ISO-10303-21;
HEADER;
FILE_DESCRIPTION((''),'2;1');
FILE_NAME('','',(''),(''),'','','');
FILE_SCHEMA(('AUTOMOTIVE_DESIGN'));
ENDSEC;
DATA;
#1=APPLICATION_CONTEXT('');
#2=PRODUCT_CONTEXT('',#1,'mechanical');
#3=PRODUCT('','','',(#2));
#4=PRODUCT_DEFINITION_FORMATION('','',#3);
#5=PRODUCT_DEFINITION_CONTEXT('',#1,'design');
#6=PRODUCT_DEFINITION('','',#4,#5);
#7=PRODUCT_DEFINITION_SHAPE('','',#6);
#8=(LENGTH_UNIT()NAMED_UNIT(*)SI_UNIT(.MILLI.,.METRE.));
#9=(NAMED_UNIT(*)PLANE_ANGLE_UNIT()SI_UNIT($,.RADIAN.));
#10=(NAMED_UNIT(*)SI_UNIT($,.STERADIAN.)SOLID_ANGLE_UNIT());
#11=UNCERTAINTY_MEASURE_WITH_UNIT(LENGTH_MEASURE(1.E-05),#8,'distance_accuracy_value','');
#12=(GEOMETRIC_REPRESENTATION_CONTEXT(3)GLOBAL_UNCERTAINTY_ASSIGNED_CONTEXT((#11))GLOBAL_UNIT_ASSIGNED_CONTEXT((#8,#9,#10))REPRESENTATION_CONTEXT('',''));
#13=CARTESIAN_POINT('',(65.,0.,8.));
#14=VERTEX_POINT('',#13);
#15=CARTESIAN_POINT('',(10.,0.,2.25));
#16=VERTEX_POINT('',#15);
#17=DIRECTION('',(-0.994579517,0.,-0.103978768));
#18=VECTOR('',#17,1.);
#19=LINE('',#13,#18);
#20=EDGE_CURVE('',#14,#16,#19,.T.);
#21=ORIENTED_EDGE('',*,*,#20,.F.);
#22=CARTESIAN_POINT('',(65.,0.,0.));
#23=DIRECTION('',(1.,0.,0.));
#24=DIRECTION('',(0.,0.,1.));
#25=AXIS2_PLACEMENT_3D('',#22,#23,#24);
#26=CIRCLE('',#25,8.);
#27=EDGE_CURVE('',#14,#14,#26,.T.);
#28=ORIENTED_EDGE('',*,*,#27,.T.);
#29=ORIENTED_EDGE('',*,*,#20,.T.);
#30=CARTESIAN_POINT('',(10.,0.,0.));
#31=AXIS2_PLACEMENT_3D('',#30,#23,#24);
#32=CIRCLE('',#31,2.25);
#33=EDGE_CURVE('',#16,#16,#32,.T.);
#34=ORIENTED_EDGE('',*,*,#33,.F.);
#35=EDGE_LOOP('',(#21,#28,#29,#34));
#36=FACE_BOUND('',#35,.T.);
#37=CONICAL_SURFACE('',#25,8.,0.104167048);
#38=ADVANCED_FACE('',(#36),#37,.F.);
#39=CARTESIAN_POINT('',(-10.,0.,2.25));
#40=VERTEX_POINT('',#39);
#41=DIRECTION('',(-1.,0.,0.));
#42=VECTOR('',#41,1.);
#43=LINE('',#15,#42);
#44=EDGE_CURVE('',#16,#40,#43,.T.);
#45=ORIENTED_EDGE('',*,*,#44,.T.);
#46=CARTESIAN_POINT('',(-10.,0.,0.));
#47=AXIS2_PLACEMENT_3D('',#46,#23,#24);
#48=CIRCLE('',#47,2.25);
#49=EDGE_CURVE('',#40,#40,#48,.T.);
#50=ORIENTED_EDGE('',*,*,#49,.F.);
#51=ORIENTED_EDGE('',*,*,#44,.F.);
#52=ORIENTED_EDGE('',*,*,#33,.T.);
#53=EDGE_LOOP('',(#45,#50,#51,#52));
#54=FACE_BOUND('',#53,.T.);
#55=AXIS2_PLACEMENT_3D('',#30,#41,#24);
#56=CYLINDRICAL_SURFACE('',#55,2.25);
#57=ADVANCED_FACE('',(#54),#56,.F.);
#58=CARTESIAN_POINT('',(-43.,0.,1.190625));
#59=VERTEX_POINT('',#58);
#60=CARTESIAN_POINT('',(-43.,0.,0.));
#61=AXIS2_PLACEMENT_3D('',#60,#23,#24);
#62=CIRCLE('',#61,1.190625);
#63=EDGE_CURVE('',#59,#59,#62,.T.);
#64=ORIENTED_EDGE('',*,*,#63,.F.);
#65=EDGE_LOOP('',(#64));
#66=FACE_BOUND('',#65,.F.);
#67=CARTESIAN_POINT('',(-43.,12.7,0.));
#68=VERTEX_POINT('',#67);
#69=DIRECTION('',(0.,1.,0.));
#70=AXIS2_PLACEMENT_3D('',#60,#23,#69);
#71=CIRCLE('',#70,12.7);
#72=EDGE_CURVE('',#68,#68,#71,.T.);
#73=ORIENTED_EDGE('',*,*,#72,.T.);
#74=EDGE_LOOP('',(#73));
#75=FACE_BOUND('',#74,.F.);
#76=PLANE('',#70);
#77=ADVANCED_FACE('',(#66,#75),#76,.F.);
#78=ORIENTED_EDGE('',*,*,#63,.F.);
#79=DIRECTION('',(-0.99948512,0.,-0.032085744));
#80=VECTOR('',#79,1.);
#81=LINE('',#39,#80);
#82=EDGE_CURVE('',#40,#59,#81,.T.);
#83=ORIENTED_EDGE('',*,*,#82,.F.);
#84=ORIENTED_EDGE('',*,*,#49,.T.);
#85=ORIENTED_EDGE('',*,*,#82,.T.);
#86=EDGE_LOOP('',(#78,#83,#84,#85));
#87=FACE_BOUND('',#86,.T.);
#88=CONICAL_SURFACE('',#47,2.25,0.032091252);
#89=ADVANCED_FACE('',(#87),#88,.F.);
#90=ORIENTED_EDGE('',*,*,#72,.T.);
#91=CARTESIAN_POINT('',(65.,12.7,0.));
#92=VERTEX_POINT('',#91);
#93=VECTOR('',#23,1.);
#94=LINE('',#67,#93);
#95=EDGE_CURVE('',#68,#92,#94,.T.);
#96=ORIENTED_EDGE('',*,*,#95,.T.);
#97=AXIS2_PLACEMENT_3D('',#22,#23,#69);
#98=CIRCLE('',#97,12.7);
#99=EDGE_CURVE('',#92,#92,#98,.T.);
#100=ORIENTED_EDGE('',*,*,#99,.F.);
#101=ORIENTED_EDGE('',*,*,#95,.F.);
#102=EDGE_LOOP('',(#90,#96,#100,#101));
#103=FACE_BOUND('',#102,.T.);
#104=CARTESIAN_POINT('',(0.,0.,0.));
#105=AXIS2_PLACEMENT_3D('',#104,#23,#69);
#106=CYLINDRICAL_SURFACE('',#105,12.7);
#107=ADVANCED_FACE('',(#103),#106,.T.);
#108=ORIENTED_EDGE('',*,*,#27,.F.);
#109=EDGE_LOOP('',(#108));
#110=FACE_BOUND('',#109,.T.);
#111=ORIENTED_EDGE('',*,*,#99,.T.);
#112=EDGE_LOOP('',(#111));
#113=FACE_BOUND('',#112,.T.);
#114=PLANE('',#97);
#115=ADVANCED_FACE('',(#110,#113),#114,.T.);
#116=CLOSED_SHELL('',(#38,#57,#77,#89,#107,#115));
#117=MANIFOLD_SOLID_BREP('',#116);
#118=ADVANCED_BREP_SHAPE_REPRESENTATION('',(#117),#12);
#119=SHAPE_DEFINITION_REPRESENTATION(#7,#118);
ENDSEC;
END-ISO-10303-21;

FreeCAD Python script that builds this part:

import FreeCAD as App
import Part
import Sketcher

V = App.Vector


def add_polygon(sketch, points):
    """Adds a closed chain of lines whose ends are joined by coincident constraints."""
    first, n = sketch.GeometryCount, len(points)
    for a, b in zip(points, points[1:] + points[:1]):
        sketch.addGeometry(Part.LineSegment(App.Vector(*a, 0), App.Vector(*b, 0)), False)
    for i in range(n):
        sketch.addConstraint(Sketcher.Constraint("Coincident", first + i, 2, first + (i + 1) % n, 1))

doc = App.newDocument("Part")
body = doc.addObject("PartDesign::Body", "Body")

sketch1 = body.newObject("Sketcher::SketchObject", "Sketch")
sketch1.AttachmentSupport = (doc.getObject("YZ_Plane"), [""])
sketch1.MapMode = "FlatFace"
sketch1.addGeometry(Part.Circle(V(0, 0, 0), V(0, 0, 1), 13), False)
sketch1.addConstraint([
    Sketcher.Constraint("Coincident", 0, 3, -1, 1),
    Sketcher.Constraint("Diameter", 0, 25.4),
])
pad1 = body.newObject("PartDesign::Pad", "Pad")
pad1.Profile = sketch1
pad1.Type = "TwoLengths"
pad1.Length = 65
pad1.Length2 = 43

sketch2 = body.newObject("Sketcher::SketchObject", "Sketch001")
sketch2.AttachmentSupport = (doc.getObject("XZ_Plane"), [""])
sketch2.MapMode = "FlatFace"
add_polygon(sketch2, [(-43, 0), (65, 0), (65, 8), (10, 2.2), (-10, 2.2), (-43, 1.2)])
sketch2.addConstraint([
    Sketcher.Constraint("Horizontal", 0),
    Sketcher.Constraint("Vertical", 1),
    Sketcher.Constraint("Horizontal", 3),
    Sketcher.Constraint("Vertical", 5),
    Sketcher.Constraint("PointOnObject", 0, 2, -1),
    Sketcher.Constraint("DistanceX", 0, 1, 0, 2, 108.0),
    Sketcher.Constraint("DistanceX", 3, 2, 3, 1, 20.0),
    Sketcher.Constraint("DistanceY", 1, 1, 1, 2, 8.0),
    Sketcher.Constraint("DistanceX", -1, 1, 0, 2, 65.0),
    Sketcher.Constraint("DistanceX", -1, 1, 2, 2, 10.0),
    Sketcher.Constraint("DistanceY", -1, 1, 2, 2, 2.25),
    Sketcher.Constraint("Distance", 4, 33.017),
])
groove = body.newObject("PartDesign::Groove", "Groove")
groove.Profile = sketch2
groove.ReferenceAxis = (sketch2, ["H_Axis"])
groove.Angle = 360

doc.recompute()
